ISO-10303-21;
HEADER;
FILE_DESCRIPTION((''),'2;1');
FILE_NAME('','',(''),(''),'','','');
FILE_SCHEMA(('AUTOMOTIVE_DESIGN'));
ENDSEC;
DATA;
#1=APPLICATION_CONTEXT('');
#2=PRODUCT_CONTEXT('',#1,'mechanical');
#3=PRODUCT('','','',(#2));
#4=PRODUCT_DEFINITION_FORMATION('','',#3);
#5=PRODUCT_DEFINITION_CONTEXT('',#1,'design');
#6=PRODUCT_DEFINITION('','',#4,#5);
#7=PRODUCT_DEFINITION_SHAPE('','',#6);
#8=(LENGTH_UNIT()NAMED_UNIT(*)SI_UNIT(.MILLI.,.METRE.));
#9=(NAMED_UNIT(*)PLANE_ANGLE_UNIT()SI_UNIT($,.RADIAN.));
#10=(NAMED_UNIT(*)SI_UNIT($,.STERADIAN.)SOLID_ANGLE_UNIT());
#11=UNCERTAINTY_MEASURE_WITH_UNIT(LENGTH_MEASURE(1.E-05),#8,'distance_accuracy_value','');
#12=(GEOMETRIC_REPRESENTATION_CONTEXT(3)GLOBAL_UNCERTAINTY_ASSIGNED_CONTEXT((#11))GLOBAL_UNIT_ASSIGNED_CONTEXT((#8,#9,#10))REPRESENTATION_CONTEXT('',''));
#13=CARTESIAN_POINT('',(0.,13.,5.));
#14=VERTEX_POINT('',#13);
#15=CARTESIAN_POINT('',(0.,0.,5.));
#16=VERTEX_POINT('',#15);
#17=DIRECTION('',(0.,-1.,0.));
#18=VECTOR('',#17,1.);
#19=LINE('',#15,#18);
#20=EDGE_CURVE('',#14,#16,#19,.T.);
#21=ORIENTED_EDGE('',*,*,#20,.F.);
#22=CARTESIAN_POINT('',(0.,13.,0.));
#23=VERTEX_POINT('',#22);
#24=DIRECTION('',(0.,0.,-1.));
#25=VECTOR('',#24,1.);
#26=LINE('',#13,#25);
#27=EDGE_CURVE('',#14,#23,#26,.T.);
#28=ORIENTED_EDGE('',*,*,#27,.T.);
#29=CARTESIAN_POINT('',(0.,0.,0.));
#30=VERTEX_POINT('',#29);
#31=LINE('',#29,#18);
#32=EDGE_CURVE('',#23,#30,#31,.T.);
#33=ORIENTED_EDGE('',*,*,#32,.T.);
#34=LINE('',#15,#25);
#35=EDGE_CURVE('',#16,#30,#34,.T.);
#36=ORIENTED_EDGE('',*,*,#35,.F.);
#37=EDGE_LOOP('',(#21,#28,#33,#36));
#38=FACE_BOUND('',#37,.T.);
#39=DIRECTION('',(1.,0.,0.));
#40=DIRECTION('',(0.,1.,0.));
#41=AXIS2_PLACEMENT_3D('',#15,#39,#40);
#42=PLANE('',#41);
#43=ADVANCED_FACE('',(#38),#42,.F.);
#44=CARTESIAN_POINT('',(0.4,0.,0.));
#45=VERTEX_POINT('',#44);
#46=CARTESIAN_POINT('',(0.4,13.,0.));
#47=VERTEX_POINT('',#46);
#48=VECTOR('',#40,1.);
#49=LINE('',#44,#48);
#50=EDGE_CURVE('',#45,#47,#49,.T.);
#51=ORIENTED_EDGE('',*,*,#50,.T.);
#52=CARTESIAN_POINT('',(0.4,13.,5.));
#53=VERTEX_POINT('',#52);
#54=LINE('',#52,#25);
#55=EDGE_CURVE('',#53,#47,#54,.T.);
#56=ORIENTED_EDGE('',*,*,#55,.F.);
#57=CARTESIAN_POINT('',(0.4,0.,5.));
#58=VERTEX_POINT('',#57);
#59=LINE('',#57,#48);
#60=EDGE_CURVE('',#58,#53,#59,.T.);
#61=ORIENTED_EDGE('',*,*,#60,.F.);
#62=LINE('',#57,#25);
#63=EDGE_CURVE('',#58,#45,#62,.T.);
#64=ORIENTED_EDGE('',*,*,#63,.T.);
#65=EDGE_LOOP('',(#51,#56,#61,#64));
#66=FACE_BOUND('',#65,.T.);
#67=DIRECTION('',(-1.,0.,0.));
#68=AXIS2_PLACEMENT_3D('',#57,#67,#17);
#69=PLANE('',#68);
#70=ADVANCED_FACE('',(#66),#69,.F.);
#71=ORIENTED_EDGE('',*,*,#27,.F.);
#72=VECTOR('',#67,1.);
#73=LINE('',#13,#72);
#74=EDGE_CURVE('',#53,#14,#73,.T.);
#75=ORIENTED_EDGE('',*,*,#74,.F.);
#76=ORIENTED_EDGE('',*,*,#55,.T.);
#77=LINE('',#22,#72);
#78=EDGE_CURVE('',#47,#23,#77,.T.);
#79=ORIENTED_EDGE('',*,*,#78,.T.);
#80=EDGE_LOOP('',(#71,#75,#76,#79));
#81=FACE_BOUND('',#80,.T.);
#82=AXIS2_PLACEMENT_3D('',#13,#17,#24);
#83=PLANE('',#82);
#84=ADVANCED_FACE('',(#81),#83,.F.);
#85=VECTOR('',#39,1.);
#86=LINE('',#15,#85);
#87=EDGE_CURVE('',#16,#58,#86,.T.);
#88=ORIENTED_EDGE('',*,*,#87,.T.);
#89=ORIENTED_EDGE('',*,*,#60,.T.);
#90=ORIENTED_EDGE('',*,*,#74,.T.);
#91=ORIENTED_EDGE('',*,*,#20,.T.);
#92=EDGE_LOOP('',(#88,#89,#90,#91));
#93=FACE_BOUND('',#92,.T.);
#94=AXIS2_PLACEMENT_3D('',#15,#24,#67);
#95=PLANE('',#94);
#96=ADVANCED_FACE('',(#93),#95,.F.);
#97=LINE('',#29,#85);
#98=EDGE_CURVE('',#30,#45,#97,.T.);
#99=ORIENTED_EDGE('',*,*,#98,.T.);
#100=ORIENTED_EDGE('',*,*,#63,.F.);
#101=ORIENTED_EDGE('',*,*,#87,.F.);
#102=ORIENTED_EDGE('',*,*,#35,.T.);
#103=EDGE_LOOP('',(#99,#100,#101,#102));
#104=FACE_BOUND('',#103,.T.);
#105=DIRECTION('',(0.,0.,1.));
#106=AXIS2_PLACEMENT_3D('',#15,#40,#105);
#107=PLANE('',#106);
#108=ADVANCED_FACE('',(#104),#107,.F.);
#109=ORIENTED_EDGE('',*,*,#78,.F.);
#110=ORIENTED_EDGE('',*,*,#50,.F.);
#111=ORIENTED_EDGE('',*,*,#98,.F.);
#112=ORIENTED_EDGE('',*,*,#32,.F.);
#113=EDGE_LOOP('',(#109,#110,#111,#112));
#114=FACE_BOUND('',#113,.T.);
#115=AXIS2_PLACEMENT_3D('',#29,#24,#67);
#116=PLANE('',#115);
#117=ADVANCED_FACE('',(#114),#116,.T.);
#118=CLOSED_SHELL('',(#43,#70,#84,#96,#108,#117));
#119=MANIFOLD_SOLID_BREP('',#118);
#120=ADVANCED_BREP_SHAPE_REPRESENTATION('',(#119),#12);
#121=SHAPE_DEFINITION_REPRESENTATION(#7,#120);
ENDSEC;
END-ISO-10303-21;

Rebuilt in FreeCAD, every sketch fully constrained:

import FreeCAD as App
import Part
import Sketcher

doc = App.newDocument("Part")
body = doc.addObject("PartDesign::Body", "Body")

# Sketch on XY plane
sketch1 = body.newObject("Sketcher::SketchObject", "Sketch")
sketch1.AttachmentSupport = (doc.getObject("XY_Plane"), [""])
sketch1.MapMode = "FlatFace"
sketch1.addGeometry([
    Part.LineSegment(App.Vector(0, 13, 0), App.Vector(0, 0, 0)),
    Part.LineSegment(App.Vector(0, 0, 0), App.Vector(0.4, 0, 0)),
    Part.LineSegment(App.Vector(0.4, 0, 0), App.Vector(0.4, 13, 0)),
    Part.LineSegment(App.Vector(0.4, 13, 0), App.Vector(0, 13, 0)),
], False)
sketch1.addConstraint([
    Sketcher.Constraint("Coincident", 0, 2, 1, 1),
    Sketcher.Constraint("Coincident", 1, 2, 2, 1),
    Sketcher.Constraint("Coincident", 2, 2, 3, 1),
    Sketcher.Constraint("Coincident", 3, 2, 0, 1),
    Sketcher.Constraint("Vertical", 0),
    Sketcher.Constraint("Horizontal", 1),
    Sketcher.Constraint("Vertical", 2),
    Sketcher.Constraint("Horizontal", 3),
    Sketcher.Constraint("Coincident", 0, 2, -1, 1),
    Sketcher.Constraint("DistanceY", 0, 2, 0, 1, 13.0),
    Sketcher.Constraint("DistanceX", 1, 1, 1, 2, 0.4),
])
pad1 = body.newObject("PartDesign::Pad", "Pad")
pad1.Profile = sketch1
pad1.Length = 5

doc.recompute()
